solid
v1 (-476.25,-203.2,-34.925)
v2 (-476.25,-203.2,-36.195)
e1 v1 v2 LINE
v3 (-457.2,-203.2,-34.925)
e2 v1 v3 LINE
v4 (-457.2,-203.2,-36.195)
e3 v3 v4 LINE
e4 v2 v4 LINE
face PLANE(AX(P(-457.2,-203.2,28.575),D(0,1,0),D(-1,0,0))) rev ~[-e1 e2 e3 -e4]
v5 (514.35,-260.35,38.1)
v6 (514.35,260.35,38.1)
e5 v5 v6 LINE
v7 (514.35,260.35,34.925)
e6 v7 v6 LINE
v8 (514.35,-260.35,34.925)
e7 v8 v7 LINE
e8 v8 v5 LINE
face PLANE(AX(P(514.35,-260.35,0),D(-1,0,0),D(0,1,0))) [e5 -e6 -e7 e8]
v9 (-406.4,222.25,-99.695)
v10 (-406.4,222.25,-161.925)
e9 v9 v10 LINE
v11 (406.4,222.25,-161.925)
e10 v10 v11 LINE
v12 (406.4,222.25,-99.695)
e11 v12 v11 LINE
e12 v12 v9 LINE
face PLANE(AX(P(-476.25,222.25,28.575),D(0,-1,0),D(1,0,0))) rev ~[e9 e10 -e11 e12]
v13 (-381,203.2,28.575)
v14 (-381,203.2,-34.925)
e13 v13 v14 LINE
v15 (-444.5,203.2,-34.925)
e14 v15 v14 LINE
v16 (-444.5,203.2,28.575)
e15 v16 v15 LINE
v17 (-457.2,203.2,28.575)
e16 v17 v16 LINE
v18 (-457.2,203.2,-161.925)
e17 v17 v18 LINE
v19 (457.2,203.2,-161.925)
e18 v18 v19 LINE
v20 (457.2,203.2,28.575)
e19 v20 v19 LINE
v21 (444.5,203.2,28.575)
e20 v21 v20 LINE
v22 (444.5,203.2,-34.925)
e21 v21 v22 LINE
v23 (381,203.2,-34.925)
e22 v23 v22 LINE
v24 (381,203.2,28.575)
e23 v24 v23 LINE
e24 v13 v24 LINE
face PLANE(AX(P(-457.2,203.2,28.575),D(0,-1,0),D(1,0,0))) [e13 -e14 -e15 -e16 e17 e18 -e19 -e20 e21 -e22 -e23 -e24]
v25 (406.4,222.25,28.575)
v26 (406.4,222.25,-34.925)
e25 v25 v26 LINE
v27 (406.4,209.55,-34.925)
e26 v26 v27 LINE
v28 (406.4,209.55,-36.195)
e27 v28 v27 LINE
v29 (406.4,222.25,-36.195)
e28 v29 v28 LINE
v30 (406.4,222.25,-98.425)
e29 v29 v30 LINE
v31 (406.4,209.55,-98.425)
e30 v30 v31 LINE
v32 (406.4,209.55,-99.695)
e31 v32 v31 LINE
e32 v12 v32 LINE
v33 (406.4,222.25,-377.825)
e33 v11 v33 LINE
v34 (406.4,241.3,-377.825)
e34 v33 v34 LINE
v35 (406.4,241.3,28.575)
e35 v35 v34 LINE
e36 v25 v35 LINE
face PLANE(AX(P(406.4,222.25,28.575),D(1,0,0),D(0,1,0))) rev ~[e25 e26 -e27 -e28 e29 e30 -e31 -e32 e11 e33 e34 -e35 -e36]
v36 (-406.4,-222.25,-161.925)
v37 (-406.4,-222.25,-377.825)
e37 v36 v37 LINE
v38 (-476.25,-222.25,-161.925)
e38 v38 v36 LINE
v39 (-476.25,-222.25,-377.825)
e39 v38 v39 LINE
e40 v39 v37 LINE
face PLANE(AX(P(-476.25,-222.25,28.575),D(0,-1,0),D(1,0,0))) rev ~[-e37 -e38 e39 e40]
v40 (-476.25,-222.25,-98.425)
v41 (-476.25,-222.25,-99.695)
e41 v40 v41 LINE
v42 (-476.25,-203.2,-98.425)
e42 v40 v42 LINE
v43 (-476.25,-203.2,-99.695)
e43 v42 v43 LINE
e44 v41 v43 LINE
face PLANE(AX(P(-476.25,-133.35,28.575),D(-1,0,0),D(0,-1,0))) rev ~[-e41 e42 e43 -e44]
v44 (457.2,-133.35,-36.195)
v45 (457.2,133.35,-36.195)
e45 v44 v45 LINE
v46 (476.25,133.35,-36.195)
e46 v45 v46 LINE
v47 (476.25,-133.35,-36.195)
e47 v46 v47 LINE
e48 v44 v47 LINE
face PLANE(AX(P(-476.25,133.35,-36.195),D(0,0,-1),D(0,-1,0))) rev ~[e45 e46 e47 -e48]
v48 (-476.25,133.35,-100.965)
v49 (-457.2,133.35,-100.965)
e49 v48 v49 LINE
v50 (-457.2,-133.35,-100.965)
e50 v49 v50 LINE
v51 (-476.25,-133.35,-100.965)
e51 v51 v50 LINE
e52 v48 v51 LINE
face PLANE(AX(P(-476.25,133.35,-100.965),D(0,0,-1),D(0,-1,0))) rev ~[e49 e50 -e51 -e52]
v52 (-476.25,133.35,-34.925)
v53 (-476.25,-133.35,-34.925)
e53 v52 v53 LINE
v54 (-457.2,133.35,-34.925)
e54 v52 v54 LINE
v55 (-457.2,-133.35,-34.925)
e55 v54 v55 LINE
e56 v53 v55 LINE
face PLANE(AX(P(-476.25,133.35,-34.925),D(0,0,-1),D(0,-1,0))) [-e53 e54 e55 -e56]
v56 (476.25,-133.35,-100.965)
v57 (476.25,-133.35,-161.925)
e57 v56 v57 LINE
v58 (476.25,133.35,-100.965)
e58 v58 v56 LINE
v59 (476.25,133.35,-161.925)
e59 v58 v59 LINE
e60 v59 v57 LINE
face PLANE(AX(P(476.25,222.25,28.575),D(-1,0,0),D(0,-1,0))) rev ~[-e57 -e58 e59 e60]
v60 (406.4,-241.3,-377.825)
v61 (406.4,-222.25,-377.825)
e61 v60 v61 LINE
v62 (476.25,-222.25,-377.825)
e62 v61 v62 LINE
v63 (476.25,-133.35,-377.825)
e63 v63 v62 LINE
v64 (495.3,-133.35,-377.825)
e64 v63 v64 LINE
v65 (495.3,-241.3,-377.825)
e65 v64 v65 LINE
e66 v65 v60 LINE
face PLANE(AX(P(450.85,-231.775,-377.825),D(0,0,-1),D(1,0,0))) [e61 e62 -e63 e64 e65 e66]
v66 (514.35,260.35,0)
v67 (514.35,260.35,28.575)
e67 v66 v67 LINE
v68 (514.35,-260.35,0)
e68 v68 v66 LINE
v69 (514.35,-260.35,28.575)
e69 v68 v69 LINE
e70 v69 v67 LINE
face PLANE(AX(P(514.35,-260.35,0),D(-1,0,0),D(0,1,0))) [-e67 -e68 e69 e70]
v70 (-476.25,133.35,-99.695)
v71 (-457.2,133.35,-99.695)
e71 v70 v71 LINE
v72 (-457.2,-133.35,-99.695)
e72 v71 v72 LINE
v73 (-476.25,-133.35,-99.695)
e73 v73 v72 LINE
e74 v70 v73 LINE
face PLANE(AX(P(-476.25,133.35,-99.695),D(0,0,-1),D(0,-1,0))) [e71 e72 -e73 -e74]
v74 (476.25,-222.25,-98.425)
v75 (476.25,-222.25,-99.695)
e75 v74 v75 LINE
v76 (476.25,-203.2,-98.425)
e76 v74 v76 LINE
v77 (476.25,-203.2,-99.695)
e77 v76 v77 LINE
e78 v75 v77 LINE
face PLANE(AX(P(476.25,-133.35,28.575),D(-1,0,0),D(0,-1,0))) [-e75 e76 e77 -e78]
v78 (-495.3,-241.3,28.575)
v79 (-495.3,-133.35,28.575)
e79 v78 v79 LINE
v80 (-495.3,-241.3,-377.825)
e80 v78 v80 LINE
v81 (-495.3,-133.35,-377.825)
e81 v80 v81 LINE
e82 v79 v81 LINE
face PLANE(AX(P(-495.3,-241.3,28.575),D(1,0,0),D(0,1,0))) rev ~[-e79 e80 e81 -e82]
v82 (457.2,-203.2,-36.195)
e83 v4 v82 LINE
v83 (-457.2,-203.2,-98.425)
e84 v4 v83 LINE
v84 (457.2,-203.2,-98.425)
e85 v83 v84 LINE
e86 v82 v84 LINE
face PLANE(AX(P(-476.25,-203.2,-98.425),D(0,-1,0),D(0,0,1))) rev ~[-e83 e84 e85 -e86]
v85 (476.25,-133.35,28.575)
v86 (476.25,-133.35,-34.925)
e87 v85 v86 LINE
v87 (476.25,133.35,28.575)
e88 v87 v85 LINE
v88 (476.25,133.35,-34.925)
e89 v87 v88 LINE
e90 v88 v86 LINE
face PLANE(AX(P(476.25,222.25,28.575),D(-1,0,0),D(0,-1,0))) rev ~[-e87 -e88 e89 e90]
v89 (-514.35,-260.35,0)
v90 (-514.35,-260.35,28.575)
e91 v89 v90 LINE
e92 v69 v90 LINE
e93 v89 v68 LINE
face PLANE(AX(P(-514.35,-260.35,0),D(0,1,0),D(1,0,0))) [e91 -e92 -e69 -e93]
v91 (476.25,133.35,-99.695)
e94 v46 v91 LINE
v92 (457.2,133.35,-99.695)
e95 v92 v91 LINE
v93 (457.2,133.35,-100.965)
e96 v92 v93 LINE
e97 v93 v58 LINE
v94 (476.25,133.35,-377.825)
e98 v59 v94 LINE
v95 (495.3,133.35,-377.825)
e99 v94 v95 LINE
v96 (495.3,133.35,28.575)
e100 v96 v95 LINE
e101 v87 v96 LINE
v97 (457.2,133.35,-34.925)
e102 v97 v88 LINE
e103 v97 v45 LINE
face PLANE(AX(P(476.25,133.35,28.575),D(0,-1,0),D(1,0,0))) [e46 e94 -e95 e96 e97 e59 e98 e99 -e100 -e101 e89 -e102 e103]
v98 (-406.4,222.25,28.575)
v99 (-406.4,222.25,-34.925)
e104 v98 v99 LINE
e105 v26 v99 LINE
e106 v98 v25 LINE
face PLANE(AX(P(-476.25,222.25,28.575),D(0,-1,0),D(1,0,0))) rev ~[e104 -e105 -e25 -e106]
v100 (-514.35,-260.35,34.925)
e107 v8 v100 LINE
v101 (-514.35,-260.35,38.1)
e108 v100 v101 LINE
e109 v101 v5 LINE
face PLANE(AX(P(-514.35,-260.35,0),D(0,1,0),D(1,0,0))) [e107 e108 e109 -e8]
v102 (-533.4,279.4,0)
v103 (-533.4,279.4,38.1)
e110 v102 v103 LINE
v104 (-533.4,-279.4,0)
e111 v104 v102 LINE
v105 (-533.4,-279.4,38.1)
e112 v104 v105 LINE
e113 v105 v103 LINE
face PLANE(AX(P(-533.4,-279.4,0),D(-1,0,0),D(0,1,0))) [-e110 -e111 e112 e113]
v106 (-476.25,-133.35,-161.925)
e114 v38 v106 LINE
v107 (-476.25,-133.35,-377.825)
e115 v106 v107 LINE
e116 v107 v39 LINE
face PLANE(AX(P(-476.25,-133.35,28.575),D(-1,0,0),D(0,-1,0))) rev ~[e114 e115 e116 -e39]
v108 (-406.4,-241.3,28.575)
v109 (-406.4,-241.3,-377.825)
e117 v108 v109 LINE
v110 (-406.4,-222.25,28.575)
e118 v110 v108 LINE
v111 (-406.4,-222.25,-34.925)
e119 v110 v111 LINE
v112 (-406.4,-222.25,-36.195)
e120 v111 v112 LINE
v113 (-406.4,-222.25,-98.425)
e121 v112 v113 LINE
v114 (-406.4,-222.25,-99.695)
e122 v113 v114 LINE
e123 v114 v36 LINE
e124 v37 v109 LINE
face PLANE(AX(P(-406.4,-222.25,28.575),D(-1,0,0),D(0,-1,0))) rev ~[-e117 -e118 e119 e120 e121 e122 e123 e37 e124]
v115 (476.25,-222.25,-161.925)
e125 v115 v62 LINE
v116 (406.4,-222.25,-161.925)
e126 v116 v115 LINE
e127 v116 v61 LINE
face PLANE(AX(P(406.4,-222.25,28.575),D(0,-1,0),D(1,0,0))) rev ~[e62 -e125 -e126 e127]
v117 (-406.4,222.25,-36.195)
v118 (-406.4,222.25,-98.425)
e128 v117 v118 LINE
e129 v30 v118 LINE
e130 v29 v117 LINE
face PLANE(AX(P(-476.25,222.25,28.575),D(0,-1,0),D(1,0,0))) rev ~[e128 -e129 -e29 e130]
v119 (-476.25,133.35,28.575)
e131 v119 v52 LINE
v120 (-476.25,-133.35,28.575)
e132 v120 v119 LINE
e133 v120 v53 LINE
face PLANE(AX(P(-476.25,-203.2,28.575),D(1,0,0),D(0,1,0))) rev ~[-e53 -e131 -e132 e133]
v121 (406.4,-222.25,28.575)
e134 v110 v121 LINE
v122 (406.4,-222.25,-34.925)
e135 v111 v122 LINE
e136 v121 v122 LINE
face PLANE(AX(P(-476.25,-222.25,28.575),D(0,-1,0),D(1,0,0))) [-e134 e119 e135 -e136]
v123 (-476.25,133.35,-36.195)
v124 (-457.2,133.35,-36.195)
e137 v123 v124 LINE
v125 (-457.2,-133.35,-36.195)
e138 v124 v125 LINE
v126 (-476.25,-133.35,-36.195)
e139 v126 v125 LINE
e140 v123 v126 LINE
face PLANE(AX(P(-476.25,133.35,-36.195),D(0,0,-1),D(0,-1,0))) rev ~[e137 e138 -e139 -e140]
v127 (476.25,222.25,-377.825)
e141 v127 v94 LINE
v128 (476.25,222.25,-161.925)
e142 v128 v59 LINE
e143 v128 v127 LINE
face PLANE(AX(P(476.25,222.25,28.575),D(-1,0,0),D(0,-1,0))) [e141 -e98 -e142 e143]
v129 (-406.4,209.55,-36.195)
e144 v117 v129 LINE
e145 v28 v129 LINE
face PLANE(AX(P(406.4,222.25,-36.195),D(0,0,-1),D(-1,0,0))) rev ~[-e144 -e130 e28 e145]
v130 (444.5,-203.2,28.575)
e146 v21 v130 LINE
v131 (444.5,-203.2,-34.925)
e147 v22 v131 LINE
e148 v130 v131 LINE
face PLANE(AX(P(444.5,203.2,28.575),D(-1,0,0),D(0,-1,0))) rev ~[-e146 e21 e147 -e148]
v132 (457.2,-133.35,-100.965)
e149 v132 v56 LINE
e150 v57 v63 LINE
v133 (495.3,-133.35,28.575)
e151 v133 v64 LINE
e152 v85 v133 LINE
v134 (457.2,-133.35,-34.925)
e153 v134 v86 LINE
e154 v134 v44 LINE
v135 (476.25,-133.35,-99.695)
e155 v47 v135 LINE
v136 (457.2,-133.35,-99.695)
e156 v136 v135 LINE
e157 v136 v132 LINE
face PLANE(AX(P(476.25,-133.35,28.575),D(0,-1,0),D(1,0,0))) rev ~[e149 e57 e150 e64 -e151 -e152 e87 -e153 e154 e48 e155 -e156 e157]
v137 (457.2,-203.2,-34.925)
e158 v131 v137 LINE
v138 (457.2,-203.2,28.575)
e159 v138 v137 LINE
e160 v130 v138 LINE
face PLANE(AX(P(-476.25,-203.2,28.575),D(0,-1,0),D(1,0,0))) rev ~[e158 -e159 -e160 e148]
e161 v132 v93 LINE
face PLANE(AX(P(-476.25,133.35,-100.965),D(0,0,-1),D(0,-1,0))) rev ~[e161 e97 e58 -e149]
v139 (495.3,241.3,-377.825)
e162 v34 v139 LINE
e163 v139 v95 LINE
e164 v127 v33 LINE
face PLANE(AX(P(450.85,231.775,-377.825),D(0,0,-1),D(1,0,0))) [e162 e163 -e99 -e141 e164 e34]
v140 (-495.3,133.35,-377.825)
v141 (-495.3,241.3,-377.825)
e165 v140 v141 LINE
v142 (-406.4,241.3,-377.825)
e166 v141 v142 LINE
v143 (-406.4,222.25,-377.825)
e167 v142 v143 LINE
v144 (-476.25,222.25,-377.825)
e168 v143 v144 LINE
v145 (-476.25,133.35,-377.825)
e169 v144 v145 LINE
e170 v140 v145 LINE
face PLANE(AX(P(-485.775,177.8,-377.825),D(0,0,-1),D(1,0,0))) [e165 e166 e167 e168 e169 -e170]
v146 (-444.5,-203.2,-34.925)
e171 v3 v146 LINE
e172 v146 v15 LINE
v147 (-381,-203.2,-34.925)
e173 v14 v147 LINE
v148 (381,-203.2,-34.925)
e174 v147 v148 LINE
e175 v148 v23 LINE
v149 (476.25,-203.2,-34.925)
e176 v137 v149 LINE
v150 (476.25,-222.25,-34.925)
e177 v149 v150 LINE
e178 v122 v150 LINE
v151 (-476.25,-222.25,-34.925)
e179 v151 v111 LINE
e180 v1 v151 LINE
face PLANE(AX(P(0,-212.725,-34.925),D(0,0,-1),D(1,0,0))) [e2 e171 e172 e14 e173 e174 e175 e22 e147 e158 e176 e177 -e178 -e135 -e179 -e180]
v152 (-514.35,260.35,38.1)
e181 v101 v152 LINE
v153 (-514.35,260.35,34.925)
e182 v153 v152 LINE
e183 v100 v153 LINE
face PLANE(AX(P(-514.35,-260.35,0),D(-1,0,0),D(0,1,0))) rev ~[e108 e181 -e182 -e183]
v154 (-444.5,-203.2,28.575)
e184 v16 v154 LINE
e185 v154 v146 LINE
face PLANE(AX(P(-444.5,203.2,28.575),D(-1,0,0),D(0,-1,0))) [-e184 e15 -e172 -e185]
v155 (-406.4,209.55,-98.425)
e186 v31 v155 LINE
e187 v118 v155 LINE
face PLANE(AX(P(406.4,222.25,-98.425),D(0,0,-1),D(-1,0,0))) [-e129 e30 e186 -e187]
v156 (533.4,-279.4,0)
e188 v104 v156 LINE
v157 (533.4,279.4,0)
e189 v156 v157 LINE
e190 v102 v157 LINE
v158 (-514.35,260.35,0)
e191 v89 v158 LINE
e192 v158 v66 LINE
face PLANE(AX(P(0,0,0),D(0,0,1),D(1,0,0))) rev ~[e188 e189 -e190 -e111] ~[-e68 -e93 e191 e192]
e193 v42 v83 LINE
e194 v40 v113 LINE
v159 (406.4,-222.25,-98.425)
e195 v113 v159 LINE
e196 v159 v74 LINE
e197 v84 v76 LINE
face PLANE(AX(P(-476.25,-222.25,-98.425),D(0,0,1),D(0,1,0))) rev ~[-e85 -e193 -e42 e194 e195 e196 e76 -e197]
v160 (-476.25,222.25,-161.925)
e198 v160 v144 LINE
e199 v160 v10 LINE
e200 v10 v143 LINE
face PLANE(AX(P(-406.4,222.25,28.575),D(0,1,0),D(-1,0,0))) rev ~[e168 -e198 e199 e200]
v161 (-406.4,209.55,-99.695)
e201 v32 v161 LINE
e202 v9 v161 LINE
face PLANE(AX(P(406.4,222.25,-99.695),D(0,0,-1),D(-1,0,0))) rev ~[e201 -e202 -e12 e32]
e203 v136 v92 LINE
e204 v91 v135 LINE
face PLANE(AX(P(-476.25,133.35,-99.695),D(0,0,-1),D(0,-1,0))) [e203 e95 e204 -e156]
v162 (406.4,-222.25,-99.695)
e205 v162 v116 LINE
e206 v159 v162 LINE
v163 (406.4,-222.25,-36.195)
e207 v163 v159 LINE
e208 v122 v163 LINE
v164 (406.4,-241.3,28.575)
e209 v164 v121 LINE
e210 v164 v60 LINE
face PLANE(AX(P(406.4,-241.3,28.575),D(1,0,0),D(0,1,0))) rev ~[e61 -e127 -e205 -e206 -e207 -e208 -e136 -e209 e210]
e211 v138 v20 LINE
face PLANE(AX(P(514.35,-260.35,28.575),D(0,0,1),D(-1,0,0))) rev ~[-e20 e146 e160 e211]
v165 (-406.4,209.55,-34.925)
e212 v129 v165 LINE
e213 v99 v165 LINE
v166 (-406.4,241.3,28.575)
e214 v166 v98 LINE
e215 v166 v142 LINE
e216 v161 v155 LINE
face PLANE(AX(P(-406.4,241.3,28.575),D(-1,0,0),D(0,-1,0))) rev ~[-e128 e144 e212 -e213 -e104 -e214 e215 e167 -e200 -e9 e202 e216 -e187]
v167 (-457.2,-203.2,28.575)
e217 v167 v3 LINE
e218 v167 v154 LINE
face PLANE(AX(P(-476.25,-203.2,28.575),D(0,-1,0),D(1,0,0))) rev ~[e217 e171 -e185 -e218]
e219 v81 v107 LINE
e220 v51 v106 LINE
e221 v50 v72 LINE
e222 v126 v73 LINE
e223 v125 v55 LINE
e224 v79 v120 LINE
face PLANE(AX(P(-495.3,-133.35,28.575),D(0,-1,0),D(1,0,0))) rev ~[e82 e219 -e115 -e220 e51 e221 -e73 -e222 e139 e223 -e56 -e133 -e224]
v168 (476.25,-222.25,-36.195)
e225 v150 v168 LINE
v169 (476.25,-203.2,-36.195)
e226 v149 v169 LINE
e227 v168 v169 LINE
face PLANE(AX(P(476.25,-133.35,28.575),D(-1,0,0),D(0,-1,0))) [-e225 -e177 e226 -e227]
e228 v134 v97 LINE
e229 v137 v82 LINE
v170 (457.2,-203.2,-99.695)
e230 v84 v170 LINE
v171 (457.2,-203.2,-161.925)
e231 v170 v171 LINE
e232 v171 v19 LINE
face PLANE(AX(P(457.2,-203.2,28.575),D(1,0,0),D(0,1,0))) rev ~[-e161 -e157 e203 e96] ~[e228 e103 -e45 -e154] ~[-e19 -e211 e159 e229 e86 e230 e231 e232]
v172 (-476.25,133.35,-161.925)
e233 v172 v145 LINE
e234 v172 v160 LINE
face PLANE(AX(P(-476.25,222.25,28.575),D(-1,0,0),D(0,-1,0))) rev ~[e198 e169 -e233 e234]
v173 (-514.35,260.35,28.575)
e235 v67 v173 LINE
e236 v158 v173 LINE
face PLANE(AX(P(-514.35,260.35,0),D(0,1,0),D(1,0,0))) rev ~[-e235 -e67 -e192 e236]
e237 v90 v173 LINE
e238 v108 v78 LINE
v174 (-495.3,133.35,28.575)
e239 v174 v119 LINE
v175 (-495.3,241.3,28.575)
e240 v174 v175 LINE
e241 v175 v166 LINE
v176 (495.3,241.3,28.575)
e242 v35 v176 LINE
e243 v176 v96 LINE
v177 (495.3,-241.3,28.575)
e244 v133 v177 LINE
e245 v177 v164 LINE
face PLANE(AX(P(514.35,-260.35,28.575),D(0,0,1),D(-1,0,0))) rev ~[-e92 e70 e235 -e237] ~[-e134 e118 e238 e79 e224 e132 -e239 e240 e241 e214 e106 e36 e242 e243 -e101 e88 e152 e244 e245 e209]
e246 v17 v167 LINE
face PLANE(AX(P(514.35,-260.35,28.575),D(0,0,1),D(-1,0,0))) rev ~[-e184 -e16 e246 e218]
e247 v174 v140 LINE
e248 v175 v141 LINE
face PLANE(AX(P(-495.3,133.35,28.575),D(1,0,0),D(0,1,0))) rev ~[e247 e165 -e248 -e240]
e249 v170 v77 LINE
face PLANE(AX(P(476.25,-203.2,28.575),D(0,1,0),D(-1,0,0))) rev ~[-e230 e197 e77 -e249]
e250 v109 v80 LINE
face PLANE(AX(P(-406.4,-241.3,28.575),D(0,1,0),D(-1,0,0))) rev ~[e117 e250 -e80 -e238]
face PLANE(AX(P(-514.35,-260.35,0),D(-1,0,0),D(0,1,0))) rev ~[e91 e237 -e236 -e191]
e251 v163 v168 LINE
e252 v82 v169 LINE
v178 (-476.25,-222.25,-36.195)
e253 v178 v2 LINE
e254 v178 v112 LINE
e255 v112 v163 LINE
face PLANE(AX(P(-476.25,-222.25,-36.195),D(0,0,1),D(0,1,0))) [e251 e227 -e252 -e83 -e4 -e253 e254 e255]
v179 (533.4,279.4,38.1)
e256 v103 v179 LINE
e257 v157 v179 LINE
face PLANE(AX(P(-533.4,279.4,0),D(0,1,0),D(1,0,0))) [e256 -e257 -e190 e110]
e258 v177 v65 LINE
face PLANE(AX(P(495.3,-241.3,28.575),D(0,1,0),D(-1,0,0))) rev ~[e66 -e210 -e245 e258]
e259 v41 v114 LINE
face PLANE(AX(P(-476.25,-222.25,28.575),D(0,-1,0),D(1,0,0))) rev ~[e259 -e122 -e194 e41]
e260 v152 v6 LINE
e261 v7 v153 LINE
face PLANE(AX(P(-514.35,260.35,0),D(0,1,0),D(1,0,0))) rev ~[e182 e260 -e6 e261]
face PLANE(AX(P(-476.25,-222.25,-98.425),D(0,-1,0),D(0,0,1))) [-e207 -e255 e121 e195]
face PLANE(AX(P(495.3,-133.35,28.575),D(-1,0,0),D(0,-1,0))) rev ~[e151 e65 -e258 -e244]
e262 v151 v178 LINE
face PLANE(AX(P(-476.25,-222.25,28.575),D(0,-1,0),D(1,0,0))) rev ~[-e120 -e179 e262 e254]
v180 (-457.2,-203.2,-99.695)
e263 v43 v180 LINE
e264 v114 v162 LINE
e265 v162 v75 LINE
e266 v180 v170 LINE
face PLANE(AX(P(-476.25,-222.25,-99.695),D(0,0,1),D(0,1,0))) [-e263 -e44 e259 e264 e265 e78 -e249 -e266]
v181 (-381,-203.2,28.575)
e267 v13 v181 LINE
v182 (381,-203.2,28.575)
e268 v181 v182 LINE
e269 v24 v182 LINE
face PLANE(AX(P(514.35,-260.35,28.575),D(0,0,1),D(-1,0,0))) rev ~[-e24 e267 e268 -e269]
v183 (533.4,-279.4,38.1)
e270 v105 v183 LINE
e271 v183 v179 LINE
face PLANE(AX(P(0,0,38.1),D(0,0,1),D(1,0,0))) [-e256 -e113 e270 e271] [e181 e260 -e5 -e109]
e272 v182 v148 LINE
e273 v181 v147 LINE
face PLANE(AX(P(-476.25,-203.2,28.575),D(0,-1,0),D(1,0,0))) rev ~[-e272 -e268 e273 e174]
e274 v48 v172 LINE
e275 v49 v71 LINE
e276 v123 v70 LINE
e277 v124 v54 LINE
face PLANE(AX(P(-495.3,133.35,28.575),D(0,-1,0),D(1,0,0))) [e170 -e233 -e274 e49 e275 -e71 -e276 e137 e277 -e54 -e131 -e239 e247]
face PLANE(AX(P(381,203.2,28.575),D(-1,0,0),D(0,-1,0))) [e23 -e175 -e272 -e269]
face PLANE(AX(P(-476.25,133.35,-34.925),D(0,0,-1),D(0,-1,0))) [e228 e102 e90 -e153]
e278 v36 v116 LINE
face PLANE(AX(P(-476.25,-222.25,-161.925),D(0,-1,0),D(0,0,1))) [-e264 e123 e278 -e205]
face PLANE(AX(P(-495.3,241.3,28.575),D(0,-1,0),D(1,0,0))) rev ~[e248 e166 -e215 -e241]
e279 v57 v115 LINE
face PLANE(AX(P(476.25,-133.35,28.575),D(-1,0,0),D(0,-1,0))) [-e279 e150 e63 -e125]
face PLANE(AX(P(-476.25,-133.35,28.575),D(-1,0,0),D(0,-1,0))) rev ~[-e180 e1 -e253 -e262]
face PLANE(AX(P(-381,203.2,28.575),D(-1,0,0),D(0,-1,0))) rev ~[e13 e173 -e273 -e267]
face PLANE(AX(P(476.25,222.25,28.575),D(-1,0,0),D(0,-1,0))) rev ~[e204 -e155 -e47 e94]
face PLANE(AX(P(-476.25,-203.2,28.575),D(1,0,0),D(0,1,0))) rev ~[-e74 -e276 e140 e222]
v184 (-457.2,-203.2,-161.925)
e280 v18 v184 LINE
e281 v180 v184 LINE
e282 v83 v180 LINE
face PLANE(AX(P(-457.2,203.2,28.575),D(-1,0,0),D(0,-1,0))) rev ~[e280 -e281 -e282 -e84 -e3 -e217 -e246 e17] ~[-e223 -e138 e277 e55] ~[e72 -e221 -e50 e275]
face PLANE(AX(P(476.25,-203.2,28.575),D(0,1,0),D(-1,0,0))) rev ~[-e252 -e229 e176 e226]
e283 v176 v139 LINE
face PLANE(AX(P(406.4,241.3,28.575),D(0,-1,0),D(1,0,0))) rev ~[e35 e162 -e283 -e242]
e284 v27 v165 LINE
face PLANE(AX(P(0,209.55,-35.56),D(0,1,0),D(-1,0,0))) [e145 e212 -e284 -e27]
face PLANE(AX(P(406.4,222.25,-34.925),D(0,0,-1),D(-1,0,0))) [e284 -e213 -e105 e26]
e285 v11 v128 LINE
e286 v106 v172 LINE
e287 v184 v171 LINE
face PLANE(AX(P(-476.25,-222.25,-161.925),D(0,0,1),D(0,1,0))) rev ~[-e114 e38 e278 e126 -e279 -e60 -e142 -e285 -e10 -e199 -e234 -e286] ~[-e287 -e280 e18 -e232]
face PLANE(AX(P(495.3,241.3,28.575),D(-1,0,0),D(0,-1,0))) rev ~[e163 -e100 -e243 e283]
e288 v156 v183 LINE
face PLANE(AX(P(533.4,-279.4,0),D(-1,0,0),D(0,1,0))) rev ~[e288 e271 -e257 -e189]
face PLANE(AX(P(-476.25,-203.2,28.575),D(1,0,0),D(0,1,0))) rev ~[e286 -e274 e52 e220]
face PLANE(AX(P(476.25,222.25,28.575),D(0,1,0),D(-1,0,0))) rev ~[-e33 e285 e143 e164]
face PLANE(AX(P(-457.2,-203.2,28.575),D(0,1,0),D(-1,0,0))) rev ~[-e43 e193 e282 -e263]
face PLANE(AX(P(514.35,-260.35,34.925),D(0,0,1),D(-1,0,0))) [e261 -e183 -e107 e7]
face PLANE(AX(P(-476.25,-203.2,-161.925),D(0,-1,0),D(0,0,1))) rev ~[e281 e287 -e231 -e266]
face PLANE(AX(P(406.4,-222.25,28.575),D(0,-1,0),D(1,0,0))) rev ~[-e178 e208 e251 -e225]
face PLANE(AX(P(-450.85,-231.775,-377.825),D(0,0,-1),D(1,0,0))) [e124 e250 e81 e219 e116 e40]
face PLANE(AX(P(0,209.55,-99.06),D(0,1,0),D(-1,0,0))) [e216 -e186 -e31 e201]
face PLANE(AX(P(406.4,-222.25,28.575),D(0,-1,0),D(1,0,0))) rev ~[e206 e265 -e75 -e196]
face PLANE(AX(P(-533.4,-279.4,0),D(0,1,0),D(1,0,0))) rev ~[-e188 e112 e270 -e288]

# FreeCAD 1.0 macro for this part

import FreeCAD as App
import Part
import Sketcher
from FreeCAD import Vector
Q = App.Units.Quantity

doc = App.newDocument("Part")
body = doc.addObject("PartDesign::Body", "Body")

# Sketch on XY plane
sketch1 = body.newObject("Sketcher::SketchObject", "Sketch")
sketch1.AttachmentSupport = (doc.getObject("XY_Plane"), [""])
sketch1.MapMode = "FlatFace"
sketch1.addGeometry(Part.LineSegment(Vector(-533, 279, 0), Vector(-533, -279, 0)), False)
sketch1.addGeometry(Part.LineSegment(Vector(-533, -279, 0), Vector(533, -279, 0)), False)
sketch1.addGeometry(Part.LineSegment(Vector(533, -279, 0), Vector(533, 279, 0)), False)
sketch1.addGeometry(Part.LineSegment(Vector(533, 279, 0), Vector(-533, 279, 0)), False)
sketch1.addGeometry(Part.LineSegment(Vector(514, -260, 0), Vector(-514, -260, 0)), False)
sketch1.addGeometry(Part.LineSegment(Vector(-514, -260, 0), Vector(-514, 260, 0)), False)
sketch1.addGeometry(Part.LineSegment(Vector(-514, 260, 0), Vector(514, 260, 0)), False)
sketch1.addGeometry(Part.LineSegment(Vector(514, 260, 0), Vector(514, -260, 0)), False)
sketch1.addConstraint(Sketcher.Constraint("Coincident", 0, 2, 1, 1))
sketch1.addConstraint(Sketcher.Constraint("Coincident", 1, 2, 2, 1))
sketch1.addConstraint(Sketcher.Constraint("Coincident", 2, 2, 3, 1))
sketch1.addConstraint(Sketcher.Constraint("Coincident", 3, 2, 0, 1))
sketch1.addConstraint(Sketcher.Constraint("Coincident", 4, 2, 5, 1))
sketch1.addConstraint(Sketcher.Constraint("Coincident", 5, 2, 6, 1))
sketch1.addConstraint(Sketcher.Constraint("Coincident", 6, 2, 7, 1))
sketch1.addConstraint(Sketcher.Constraint("Coincident", 7, 2, 4, 1))
sketch1.addConstraint(Sketcher.Constraint("Vertical", 0))
sketch1.addConstraint(Sketcher.Constraint("Horizontal", 1))
sketch1.addConstraint(Sketcher.Constraint("Vertical", 2))
sketch1.addConstraint(Sketcher.Constraint("Horizontal", 3))
sketch1.addConstraint(Sketcher.Constraint("Horizontal", 4))
sketch1.addConstraint(Sketcher.Constraint("Vertical", 5))
sketch1.addConstraint(Sketcher.Constraint("Horizontal", 6))
sketch1.addConstraint(Sketcher.Constraint("Vertical", 7))
sketch1.addConstraint(Sketcher.Constraint("Symmetric", 0, 2, 2, 2, -1, 1))
sketch1.addConstraint(Sketcher.Constraint("Symmetric", 4, 2, 6, 2, -1, 1))
sketch1.addConstraint(Sketcher.Constraint("DistanceX", 1, 1, 1, 2, Q("42 in")))
sketch1.addConstraint(Sketcher.Constraint("DistanceY", 0, 2, 0, 1, Q("22 in")))
sketch1.addConstraint(Sketcher.Constraint("DistanceX", 4, 2, 4, 1, Q("40.5 in")))
sketch1.addConstraint(Sketcher.Constraint("DistanceY", 5, 1, 5, 2, Q("20.5 in")))
pad1 = body.newObject("PartDesign::Pad", "Pad")
pad1.Profile = sketch1
pad1.Length = Q("1.5 in")

# Sketch on XZ plane
sketch2 = body.newObject("Sketcher::SketchObject", "Sketch001")
sketch2.AttachmentSupport = (doc.getObject("XZ_Plane"), [""])
sketch2.MapMode = "FlatFace"
sketch2.AttachmentOffset = App.Placement(Vector(0, 0, 10.25 * 25.4), App.Rotation())
sketch2.addGeometry(Part.LineSegment(Vector(514, 35, 0), Vector(514, 29, 0)), False)
sketch2.addGeometry(Part.LineSegment(Vector(514, 29, 0), Vector(-514, 29, 0)), False)
sketch2.addGeometry(Part.LineSegment(Vector(-514, 29, 0), Vector(-514, 35, 0)), False)
sketch2.addGeometry(Part.LineSegment(Vector(-514, 35, 0), Vector(514, 35, 0)), False)
sketch2.addConstraint(Sketcher.Constraint("Coincident", 0, 2, 1, 1))
sketch2.addConstraint(Sketcher.Constraint("Coincident", 1, 2, 2, 1))
sketch2.addConstraint(Sketcher.Constraint("Coincident", 2, 2, 3, 1))
sketch2.addConstraint(Sketcher.Constraint("Coincident", 3, 2, 0, 1))
sketch2.addConstraint(Sketcher.Constraint("Vertical", 0))
sketch2.addConstraint(Sketcher.Constraint("Horizontal", 1))
sketch2.addConstraint(Sketcher.Constraint("Vertical", 2))
sketch2.addConstraint(Sketcher.Constraint("Horizontal", 3))
sketch2.addConstraint(Sketcher.Constraint("DistanceX", 1, 2, 1, 1, Q("40.5 in")))
sketch2.addConstraint(Sketcher.Constraint("DistanceY", 0, 2, 0, 1, Q("0.25 in")))
sketch2.addConstraint(Sketcher.Constraint("DistanceX", -1, 1, 0, 2, Q("20.25 in")))
sketch2.addConstraint(Sketcher.Constraint("DistanceY", -1, 1, 0, 2, Q("1.125 in")))
pad2 = body.newObject("PartDesign::Pad", "Pad001")
pad2.Profile = sketch2
pad2.Length = Q("20.5 in")
pad2.Reversed = True

# Sketch on XY plane
sketch3 = body.newObject("Sketcher::SketchObject", "Sketch002")
sketch3.AttachmentSupport = (doc.getObject("XY_Plane"), [""])
sketch3.MapMode = "FlatFace"
sketch3.AttachmentOffset = App.Placement(Vector(0, 0, 1.125 * 25.4), App.Rotation())
sketch3.addGeometry(Part.LineSegment(Vector(-476, -222, 0), Vector(-476, -203, 0)), False)
sketch3.addGeometry(Part.LineSegment(Vector(-476, -203, 0), Vector(476, -203, 0)), False)
sketch3.addGeometry(Part.LineSegment(Vector(476, -203, 0), Vector(476, -222, 0)), False)
sketch3.addGeometry(Part.LineSegment(Vector(476, -222, 0), Vector(-476, -222, 0)), False)
sketch3.addConstraint(Sketcher.Constraint("Coincident", 0, 2, 1, 1))
sketch3.addConstraint(Sketcher.Constraint("Coincident", 1, 2, 2, 1))
sketch3.addConstraint(Sketcher.Constraint("Coincident", 2, 2, 3, 1))
sketch3.addConstraint(Sketcher.Constraint("Coincident", 3, 2, 0, 1))
sketch3.addConstraint(Sketcher.Constraint("Vertical", 0))
sketch3.addConstraint(Sketcher.Constraint("Horizontal", 1))
sketch3.addConstraint(Sketcher.Constraint("Vertical", 2))
sketch3.addConstraint(Sketcher.Constraint("Horizontal", 3))
sketch3.addConstraint(Sketcher.Constraint("DistanceX", 1, 1, 1, 2, Q("37.5 in")))
sketch3.addConstraint(Sketcher.Constraint("DistanceY", 0, 2, -1, 1, Q("8 in")))
sketch3.addConstraint(Sketcher.Constraint("DistanceY", 0, 1, 0, 2, Q("0.75 in")))
sketch3.addConstraint(Sketcher.Constraint("DistanceX", 0, 2, -1, 1, Q("18.75 in")))
pad3 = body.newObject("PartDesign::Pad", "Pad002")
pad3.Profile = sketch3
pad3.Length = Q("2.5 in")
pad3.Reversed = True

# Sketch on XY plane
sketch4 = body.newObject("Sketcher::SketchObject", "Sketch003")
sketch4.AttachmentSupport = (doc.getObject("XY_Plane"), [""])
sketch4.MapMode = "FlatFace"
sketch4.AttachmentOffset = App.Placement(Vector(0, 0, 1.125 * 25.4), App.Rotation())
sketch4.addGeometry(Part.LineSegment(Vector(-444, -203, 0), Vector(-444, 203, 0)), False)
sketch4.addGeometry(Part.LineSegment(Vector(-444, 203, 0), Vector(-381, 203, 0)), False)
sketch4.addGeometry(Part.LineSegment(Vector(-381, 203, 0), Vector(-381, -203, 0)), False)
sketch4.addGeometry(Part.LineSegment(Vector(-381, -203, 0), Vector(-444, -203, 0)), False)
sketch4.addGeometry(Part.LineSegment(Vector(381, -203, 0), Vector(381, 203, 0)), False)
sketch4.addGeometry(Part.LineSegment(Vector(381, 203, 0), Vector(444, 203, 0)), False)
sketch4.addGeometry(Part.LineSegment(Vector(444, 203, 0), Vector(444, -203, 0)), False)
sketch4.addGeometry(Part.LineSegment(Vector(444, -203, 0), Vector(381, -203, 0)), False)
sketch4.addConstraint(Sketcher.Constraint("Coincident", 0, 2, 1, 1))
sketch4.addConstraint(Sketcher.Constraint("Coincident", 1, 2, 2, 1))
sketch4.addConstraint(Sketcher.Constraint("Coincident", 2, 2, 3, 1))
sketch4.addConstraint(Sketcher.Constraint("Coincident", 3, 2, 0, 1))
sketch4.addConstraint(Sketcher.Constraint("Coincident", 4, 2, 5, 1))
sketch4.addConstraint(Sketcher.Constraint("Coincident", 5, 2, 6, 1))
sketch4.addConstraint(Sketcher.Constraint("Coincident", 6, 2, 7, 1))
sketch4.addConstraint(Sketcher.Constraint("Coincident", 7, 2, 4, 1))
sketch4.addConstraint(Sketcher.Constraint("Vertical", 0))
sketch4.addConstraint(Sketcher.Constraint("Horizontal", 1))
sketch4.addConstraint(Sketcher.Constraint("Vertical", 2))
sketch4.addConstraint(Sketcher.Constraint("Horizontal", 3))
sketch4.addConstraint(Sketcher.Constraint("Vertical", 4))
sketch4.addConstraint(Sketcher.Constraint("Horizontal", 5))
sketch4.addConstraint(Sketcher.Constraint("Vertical", 6))
sketch4.addConstraint(Sketcher.Constraint("Horizontal", 7))
sketch4.addConstraint(Sketcher.Constraint("Symmetric", 2, 2, 4, 2, -1, 1))
sketch4.addConstraint(Sketcher.Constraint("Symmetric", 0, 2, 6, 2, -1, 1))
sketch4.addConstraint(Sketcher.Constraint("Horizontal", 1, 2, 4, 2))
sketch4.addConstraint(Sketcher.Constraint("DistanceY", 0, 1, 0, 2, Q("16 in")))
sketch4.addConstraint(Sketcher.Constraint("DistanceX", 1, 1, 1, 2, Q("2.5 in")))
sketch4.addConstraint(Sketcher.Constraint("DistanceX", 1, 2, -1, 1, Q("15 in")))
pad4 = body.newObject("PartDesign::Pad", "Pad003")
pad4.Profile = sketch4
pad4.Length = Q("2.5 in")
pad4.Reversed = True

# Sketch on XY plane
sketch5 = body.newObject("Sketcher::SketchObject", "Sketch004")
sketch5.AttachmentSupport = (doc.getObject("XY_Plane"), [""])
sketch5.MapMode = "FlatFace"
sketch5.AttachmentOffset = App.Placement(Vector(0, 0, 1.125 * 25.4), App.Rotation())
sketch5.addGeometry(Part.LineSegment(Vector(-406, -241, 0), Vector(-495, -241, 0)), False)
sketch5.addGeometry(Part.LineSegment(Vector(-495, -241, 0), Vector(-495, -133, 0)), False)
sketch5.addGeometry(Part.LineSegment(Vector(-495, -133, 0), Vector(-476, -133, 0)), False)
sketch5.addGeometry(Part.LineSegment(Vector(-476, -133, 0), Vector(-476, -222, 0)), False)
sketch5.addGeometry(Part.LineSegment(Vector(-476, -222, 0), Vector(-406, -222, 0)), False)
sketch5.addGeometry(Part.LineSegment(Vector(-406, -222, 0), Vector(-406, -241, 0)), False)
sketch5.addGeometry(Part.LineSegment(Vector(-495, 133, 0), Vector(-495, 241, 0)), False)
sketch5.addGeometry(Part.LineSegment(Vector(-495, 241, 0), Vector(-406, 241, 0)), False)
sketch5.addGeometry(Part.LineSegment(Vector(-406, 241, 0), Vector(-406, 222, 0)), False)
sketch5.addGeometry(Part.LineSegment(Vector(-406, 222, 0), Vector(-476, 222, 0)), False)
sketch5.addGeometry(Part.LineSegment(Vector(-476, 222, 0), Vector(-476, 133, 0)), False)
sketch5.addGeometry(Part.LineSegment(Vector(-476, 133, 0), Vector(-495, 133, 0)), False)
sketch5.addGeometry(Part.LineSegment(Vector(406, 222, 0), Vector(406, 241, 0)), False)
sketch5.addGeometry(Part.LineSegment(Vector(406, 241, 0), Vector(495, 241, 0)), False)
sketch5.addGeometry(Part.LineSegment(Vector(495, 241, 0), Vector(495, 133, 0)), False)
sketch5.addGeometry(Part.LineSegment(Vector(495, 133, 0), Vector(476, 133, 0)), False)
sketch5.addGeometry(Part.LineSegment(Vector(476, 133, 0), Vector(476, 222, 0)), False)
sketch5.addGeometry(Part.LineSegment(Vector(476, 222, 0), Vector(406, 222, 0)), False)
sketch5.addGeometry(Part.LineSegment(Vector(495, -241, 0), Vector(406, -241, 0)), False)
sketch5.addGeometry(Part.LineSegment(Vector(406, -241, 0), Vector(406, -222, 0)), False)
sketch5.addGeometry(Part.LineSegment(Vector(406, -222, 0), Vector(476, -222, 0)), False)
sketch5.addGeometry(Part.LineSegment(Vector(476, -222, 0), Vector(476, -133, 0)), False)
sketch5.addGeometry(Part.LineSegment(Vector(476, -133, 0), Vector(495, -133, 0)), False)
sketch5.addGeometry(Part.LineSegment(Vector(495, -133, 0), Vector(495, -241, 0)), False)
sketch5.addConstraint(Sketcher.Constraint("Coincident", 0, 2, 1, 1))
sketch5.addConstraint(Sketcher.Constraint("Coincident", 1, 2, 2, 1))
sketch5.addConstraint(Sketcher.Constraint("Coincident", 2, 2, 3, 1))
sketch5.addConstraint(Sketcher.Constraint("Coincident", 3, 2, 4, 1))
sketch5.addConstraint(Sketcher.Constraint("Coincident", 4, 2, 5, 1))
sketch5.addConstraint(Sketcher.Constraint("Coincident", 5, 2, 0, 1))
sketch5.addConstraint(Sketcher.Constraint("Coincident", 6, 2, 7, 1))
sketch5.addConstraint(Sketcher.Constraint("Coincident", 7, 2, 8, 1))
sketch5.addConstraint(Sketcher.Constraint("Coincident", 8, 2, 9, 1))
sketch5.addConstraint(Sketcher.Constraint("Coincident", 9, 2, 10, 1))
sketch5.addConstraint(Sketcher.Constraint("Coincident", 10, 2, 11, 1))
sketch5.addConstraint(Sketcher.Constraint("Coincident", 11, 2, 6, 1))
sketch5.addConstraint(Sketcher.Constraint("Coincident", 12, 2, 13, 1))
sketch5.addConstraint(Sketcher.Constraint("Coincident", 13, 2, 14, 1))
sketch5.addConstraint(Sketcher.Constraint("Coincident", 14, 2, 15, 1))
sketch5.addConstraint(Sketcher.Constraint("Coincident", 15, 2, 16, 1))
sketch5.addConstraint(Sketcher.Constraint("Coincident", 16, 2, 17, 1))
sketch5.addConstraint(Sketcher.Constraint("Coincident", 17, 2, 12, 1))
sketch5.addConstraint(Sketcher.Constraint("Coincident", 18, 2, 19, 1))
sketch5.addConstraint(Sketcher.Constraint("Coincident", 19, 2, 20, 1))
sketch5.addConstraint(Sketcher.Constraint("Coincident", 20, 2, 21, 1))
sketch5.addConstraint(Sketcher.Constraint("Coincident", 21, 2, 22, 1))
sketch5.addConstraint(Sketcher.Constraint("Coincident", 22, 2, 23, 1))
sketch5.addConstraint(Sketcher.Constraint("Coincident", 23, 2, 18, 1))
sketch5.addConstraint(Sketcher.Constraint("Horizontal", 0))
sketch5.addConstraint(Sketcher.Constraint("Vertical", 1))
sketch5.addConstraint(Sketcher.Constraint("Horizontal", 2))
sketch5.addConstraint(Sketcher.Constraint("Vertical", 3))
sketch5.addConstraint(Sketcher.Constraint("Horizontal", 4))
sketch5.addConstraint(Sketcher.Constraint("Vertical", 5))
sketch5.addConstraint(Sketcher.Constraint("Vertical", 6))
sketch5.addConstraint(Sketcher.Constraint("Horizontal", 7))
sketch5.addConstraint(Sketcher.Constraint("Vertical", 8))
sketch5.addConstraint(Sketcher.Constraint("Horizontal", 9))
sketch5.addConstraint(Sketcher.Constraint("Vertical", 10))
sketch5.addConstraint(Sketcher.Constraint("Horizontal", 11))
sketch5.addConstraint(Sketcher.Constraint("Vertical", 12))
sketch5.addConstraint(Sketcher.Constraint("Horizontal", 13))
sketch5.addConstraint(Sketcher.Constraint("Vertical", 14))
sketch5.addConstraint(Sketcher.Constraint("Horizontal", 15))
sketch5.addConstraint(Sketcher.Constraint("Vertical", 16))
sketch5.addConstraint(Sketcher.Constraint("Horizontal", 17))
sketch5.addConstraint(Sketcher.Constraint("Horizontal", 18))
sketch5.addConstraint(Sketcher.Constraint("Vertical", 19))
sketch5.addConstraint(Sketcher.Constraint("Horizontal", 20))
sketch5.addConstraint(Sketcher.Constraint("Vertical", 21))
sketch5.addConstraint(Sketcher.Constraint("Horizontal", 22))
sketch5.addConstraint(Sketcher.Constraint("Vertical", 23))
sketch5.addConstraint(Sketcher.Constraint("Symmetric", 5, 2, 12, 2, -1, 1))
sketch5.addConstraint(Sketcher.Constraint("Symmetric", 1, 2, 14, 2, -1, 1))
sketch5.addConstraint(Sketcher.Constraint("Symmetric", 3, 2, 16, 2, -1, 1))
sketch5.addConstraint(Sketcher.Constraint("Symmetric", 7, 2, 18, 2, -1, 1))
sketch5.addConstraint(Sketcher.Constraint("Symmetric", 9, 2, 20, 2, -1, 1))
sketch5.addConstraint(Sketcher.Constraint("Symmetric", 11, 2, 22, 2, -1, 1))
sketch5.addConstraint(Sketcher.Constraint("Symmetric", 7, 2, 12, 2, -2))
sketch5.addConstraint(Sketcher.Constraint("Symmetric", 11, 2, 14, 2, -2))
sketch5.addConstraint(Sketcher.Constraint("Symmetric", 9, 2, 16, 2, -2))
sketch5.addConstraint(Sketcher.Constraint("Equal", 18, 3))
sketch5.addConstraint(Sketcher.Constraint("Equal", 22, 5))
sketch5.addConstraint(Sketcher.Constraint("DistanceX", 0, 2, 0, 1, Q("3.5 in")))
sketch5.addConstraint(Sketcher.Constraint("DistanceX", 4, 2, -1, 1, Q("16 in")))
sketch5.addConstraint(Sketcher.Constraint("DistanceY", 0, 2, 6, 2, Q("19 in")))
sketch5.addConstraint(Sketcher.Constraint("DistanceY", 2, 2, 8, 2, Q("14 in")))
pad5 = body.newObject("PartDesign::Pad", "Pad004")
pad5.Profile = sketch5
pad5.Length = Q("16 in")
pad5.Reversed = True

# Sketch on XY plane
sketch6 = body.newObject("Sketcher::SketchObject", "Sketch005")
sketch6.AttachmentSupport = (doc.getObject("XY_Plane"), [""])
sketch6.MapMode = "FlatFace"
sketch6.AttachmentOffset = App.Placement(Vector(0, 0, 1.125 * 25.4), App.Rotation())
sketch6.addGeometry(Part.LineSegment(Vector(476, 222, 0), Vector(476, -203, 0)), False)
sketch6.addGeometry(Part.LineSegment(Vector(476, -203, 0), Vector(457, -203, 0)), False)
sketch6.addGeometry(Part.LineSegment(Vector(457, -203, 0), Vector(457, 203, 0)), False)
sketch6.addGeometry(Part.LineSegment(Vector(457, 203, 0), Vector(-457, 203, 0)), False)
sketch6.addGeometry(Part.LineSegment(Vector(-457, 203, 0), Vector(-457, -203, 0)), False)
sketch6.addGeometry(Part.LineSegment(Vector(-457, -203, 0), Vector(-476, -203, 0)), False)
sketch6.addGeometry(Part.LineSegment(Vector(-476, -203, 0), Vector(-476, 222, 0)), False)
sketch6.addGeometry(Part.LineSegment(Vector(-476, 222, 0), Vector(476, 222, 0)), False)
sketch6.addConstraint(Sketcher.Constraint("Coincident", 0, 2, 1, 1))
sketch6.addConstraint(Sketcher.Constraint("Coincident", 1, 2, 2, 1))
sketch6.addConstraint(Sketcher.Constraint("Coincident", 2, 2, 3, 1))
sketch6.addConstraint(Sketcher.Constraint("Coincident", 3, 2, 4, 1))
sketch6.addConstraint(Sketcher.Constraint("Coincident", 4, 2, 5, 1))
sketch6.addConstraint(Sketcher.Constraint("Coincident", 5, 2, 6, 1))
sketch6.addConstraint(Sketcher.Constraint("Coincident", 6, 2, 7, 1))
sketch6.addConstraint(Sketcher.Constraint("Coincident", 7, 2, 0, 1))
sketch6.addConstraint(Sketcher.Constraint("Vertical", 0))
sketch6.addConstraint(Sketcher.Constraint("Horizontal", 1))
sketch6.addConstraint(Sketcher.Constraint("Vertical", 2))
sketch6.addConstraint(Sketcher.Constraint("Horizontal", 3))
sketch6.addConstraint(Sketcher.Constraint("Vertical", 4))
sketch6.addConstraint(Sketcher.Constraint("Horizontal", 5))
sketch6.addConstraint(Sketcher.Constraint("Vertical", 6))
sketch6.addConstraint(Sketcher.Constraint("Horizontal", 7))
sketch6.addConstraint(Sketcher.Constraint("Symmetric", 1, 2, 3, 2, -1, 1))
sketch6.addConstraint(Sketcher.Constraint("Symmetric", 0, 2, 5, 2, -2))
sketch6.addConstraint(Sketcher.Constraint("DistanceX", 3, 2, 3, 1, Q("36 in")))
sketch6.addConstraint(Sketcher.Constraint("DistanceY", 2, 1, 2, 2, Q("16 in")))
sketch6.addConstraint(Sketcher.Constraint("DistanceX", 7, 1, 7, 2, Q("37.5 in")))
sketch6.addConstraint(Sketcher.Constraint("DistanceY", 0, 2, 0, 1, Q("16.75 in")))
pad6 = body.newObject("PartDesign::Pad", "Pad005")
pad6.Profile = sketch6
pad6.Length = Q("7.5 in")
pad6.Reversed = True

# Sketch on XZ plane
sketch7 = body.newObject("Sketcher::SketchObject", "Sketch006")
sketch7.AttachmentSupport = (doc.getObject("XZ_Plane"), [""])
sketch7.MapMode = "FlatFace"
sketch7.AttachmentOffset = App.Placement(Vector(0, 0, -8.75 * 25.4), App.Rotation())
sketch7.addGeometry(Part.LineSegment(Vector(406.4, -34.9, 0), Vector(406.4, -36.2, 0)), False)
sketch7.addGeometry(Part.LineSegment(Vector(406.4, -36.2, 0), Vector(-406.4, -36.2, 0)), False)
sketch7.addGeometry(Part.LineSegment(Vector(-406.4, -36.2, 0), Vector(-406.4, -34.9, 0)), False)
sketch7.addGeometry(Part.LineSegment(Vector(-406.4, -34.9, 0), Vector(406.4, -34.9, 0)), False)
sketch7.addGeometry(Part.LineSegment(Vector(406.4, -98.4, 0), Vector(406.4, -99.7, 0)), False)
sketch7.addGeometry(Part.LineSegment(Vector(406.4, -99.7, 0), Vector(-406.4, -99.7, 0)), False)
sketch7.addGeometry(Part.LineSegment(Vector(-406.4, -99.7, 0), Vector(-406.4, -98.4, 0)), False)
sketch7.addGeometry(Part.LineSegment(Vector(-406.4, -98.4, 0), Vector(406.4, -98.4, 0)), False)
sketch7.addConstraint(Sketcher.Constraint("Coincident", 0, 2, 1, 1))
sketch7.addConstraint(Sketcher.Constraint("Coincident", 1, 2, 2, 1))
sketch7.addConstraint(Sketcher.Constraint("Coincident", 2, 2, 3, 1))
sketch7.addConstraint(Sketcher.Constraint("Coincident", 3, 2, 0, 1))
sketch7.addConstraint(Sketcher.Constraint("Coincident", 4, 2, 5, 1))
sketch7.addConstraint(Sketcher.Constraint("Coincident", 5, 2, 6, 1))
sketch7.addConstraint(Sketcher.Constraint("Coincident", 6, 2, 7, 1))
sketch7.addConstraint(Sketcher.Constraint("Coincident", 7, 2, 4, 1))
sketch7.addConstraint(Sketcher.Constraint("Vertical", 0))
sketch7.addConstraint(Sketcher.Constraint("Horizontal", 1))
sketch7.addConstraint(Sketcher.Constraint("Vertical", 2))
sketch7.addConstraint(Sketcher.Constraint("Horizontal", 3))
sketch7.addConstraint(Sketcher.Constraint("Vertical", 4))
sketch7.addConstraint(Sketcher.Constraint("Horizontal", 5))
sketch7.addConstraint(Sketcher.Constraint("Vertical", 6))
sketch7.addConstraint(Sketcher.Constraint("Horizontal", 7))
sketch7.addConstraint(Sketcher.Constraint("Vertical", 3, 2, 4, 2))
sketch7.addConstraint(Sketcher.Constraint("Vertical", 2, 2, 5, 2))
sketch7.addConstraint(Sketcher.Constraint("Equal", 2, 4))
sketch7.addConstraint(Sketcher.Constraint("DistanceX", 1, 2, 1, 1, Q("32 in")))
sketch7.addConstraint(Sketcher.Constraint("DistanceX", -1, 1, 0, 2, Q("16 in")))
sketch7.addConstraint(Sketcher.Constraint("DistanceY", 0, 2, 0, 1, Q("0.05 in")))
sketch7.addConstraint(Sketcher.Constraint("DistanceY", 4, 2, 0, 2, Q("2.5 in")))
sketch7.addConstraint(Sketcher.Constraint("DistanceY", 0, 2, -1, 1, Q("1.425 in")))
pocket1 = body.newObject("PartDesign::Pocket", "Pocket")
pocket1.Profile = sketch7
pocket1.Length = Q("0.5 in")
pocket1.Reversed = True

# Sketch on YZ plane
sketch8 = body.newObject("Sketcher::SketchObject", "Sketch007")
sketch8.AttachmentSupport = (doc.getObject("YZ_Plane"), [""])
sketch8.MapMode = "FlatFace"
sketch8.AttachmentOffset = App.Placement(Vector(0, 0, -18.75 * 25.4), App.Rotation())
sketch8.addGeometry(Part.LineSegment(Vector(133.3, -34.9, 0), Vector(133.3, -36.2, 0)), False)
sketch8.addGeometry(Part.LineSegment(Vector(133.3, -36.2, 0), Vector(-133.3, -36.2, 0)), False)
sketch8.addGeometry(Part.LineSegment(Vector(-133.3, -36.2, 0), Vector(-133.3, -34.9, 0)), False)
sketch8.addGeometry(Part.LineSegment(Vector(-133.3, -34.9, 0), Vector(133.3, -34.9, 0)), False)
sketch8.addGeometry(Part.LineSegment(Vector(133.3, -99.7, 0), Vector(133.3, -101, 0)), False)
sketch8.addGeometry(Part.LineSegment(Vector(133.3, -101, 0), Vector(-133.3, -101, 0)), False)
sketch8.addGeometry(Part.LineSegment(Vector(-133.3, -101, 0), Vector(-133.3, -99.7, 0)), False)
sketch8.addGeometry(Part.LineSegment(Vector(-133.3, -99.7, 0), Vector(133.3, -99.7, 0)), False)
sketch8.addConstraint(Sketcher.Constraint("Coincident", 0, 2, 1, 1))
sketch8.addConstraint(Sketcher.Constraint("Coincident", 1, 2, 2, 1))
sketch8.addConstraint(Sketcher.Constraint("Coincident", 2, 2, 3, 1))
sketch8.addConstraint(Sketcher.Constraint("Coincident", 3, 2, 0, 1))
sketch8.addConstraint(Sketcher.Constraint("Coincident", 4, 2, 5, 1))
sketch8.addConstraint(Sketcher.Constraint("Coincident", 5, 2, 6, 1))
sketch8.addConstraint(Sketcher.Constraint("Coincident", 6, 2, 7, 1))
sketch8.addConstraint(Sketcher.Constraint("Coincident", 7, 2, 4, 1))
sketch8.addConstraint(Sketcher.Constraint("Vertical", 0))
sketch8.addConstraint(Sketcher.Constraint("Horizontal", 1))
sketch8.addConstraint(Sketcher.Constraint("Vertical", 2))
sketch8.addConstraint(Sketcher.Constraint("Horizontal", 3))
sketch8.addConstraint(Sketcher.Constraint("Vertical", 4))
sketch8.addConstraint(Sketcher.Constraint("Horizontal", 5))
sketch8.addConstraint(Sketcher.Constraint("Vertical", 6))
sketch8.addConstraint(Sketcher.Constraint("Horizontal", 7))
sketch8.addConstraint(Sketcher.Constraint("Vertical", 3, 2, 4, 2))
sketch8.addConstraint(Sketcher.Constraint("Vertical", 2, 2, 5, 2))
sketch8.addConstraint(Sketcher.Constraint("Equal", 2, 4))
sketch8.addConstraint(Sketcher.Constraint("DistanceX", 1, 2, 1, 1, Q("10.5 in")))
sketch8.addConstraint(Sketcher.Constraint("DistanceY", 0, 2, 0, 1, Q("0.05 in")))
sketch8.addConstraint(Sketcher.Constraint("DistanceY", 4, 2, 3, 2, Q("2.6 in")))
sketch8.addConstraint(Sketcher.Constraint("DistanceX", -1, 1, 0, 2, Q("5.25 in")))
sketch8.addConstraint(Sketcher.Constraint("DistanceY", 0, 2, -1, 1, Q("1.425 in")))
pocket2 = body.newObject("PartDesign::Pocket", "Pocket001")
pocket2.Profile = sketch8
pocket2.Length = Q("37.5 in")
pocket2.Reversed = True

# Sketch on YZ plane
sketch9 = body.newObject("Sketcher::SketchObject", "Sketch008")
sketch9.AttachmentSupport = (doc.getObject("YZ_Plane"), [""])
sketch9.MapMode = "FlatFace"
sketch9.AttachmentOffset = App.Placement(Vector(0, 0, -18.75 * 25.4), App.Rotation())
sketch9.addGeometry(Part.LineSegment(Vector(-222, -100, 0), Vector(-222, -162, 0)), False)
sketch9.addGeometry(Part.LineSegment(Vector(-222, -162, 0), Vector(-203, -162, 0)), False)
sketch9.addGeometry(Part.LineSegment(Vector(-203, -162, 0), Vector(-203, -100, 0)), False)
sketch9.addGeometry(Part.LineSegment(Vector(-203, -100, 0), Vector(-222, -100, 0)), False)
sketch9.addGeometry(Part.LineSegment(Vector(-222, -36, 0), Vector(-222, -98, 0)), False)
sketch9.addGeometry(Part.LineSegment(Vector(-222, -98, 0), Vector(-203, -98, 0)), False)
sketch9.addGeometry(Part.LineSegment(Vector(-203, -98, 0), Vector(-203, -36, 0)), False)
sketch9.addGeometry(Part.LineSegment(Vector(-203, -36, 0), Vector(-222, -36, 0)), False)
sketch9.addConstraint(Sketcher.Constraint("Coincident", 0, 2, 1, 1))
sketch9.addConstraint(Sketcher.Constraint("Coincident", 1, 2, 2, 1))
sketch9.addConstraint(Sketcher.Constraint("Coincident", 2, 2, 3, 1))
sketch9.addConstraint(Sketcher.Constraint("Coincident", 3, 2, 0, 1))
sketch9.addConstraint(Sketcher.Constraint("Coincident", 4, 2, 5, 1))
sketch9.addConstraint(Sketcher.Constraint("Coincident", 5, 2, 6, 1))
sketch9.addConstraint(Sketcher.Constraint("Coincident", 6, 2, 7, 1))
sketch9.addConstraint(Sketcher.Constraint("Coincident", 7, 2, 4, 1))
sketch9.addConstraint(Sketcher.Constraint("Vertical", 0))
sketch9.addConstraint(Sketcher.Constraint("Horizontal", 1))
sketch9.addConstraint(Sketcher.Constraint("Vertical", 2))
sketch9.addConstraint(Sketcher.Constraint("Horizontal", 3))
sketch9.addConstraint(Sketcher.Constraint("Vertical", 4))
sketch9.addConstraint(Sketcher.Constraint("Horizontal", 5))
sketch9.addConstraint(Sketcher.Constraint("Vertical", 6))
sketch9.addConstraint(Sketcher.Constraint("Horizontal", 7))
sketch9.addConstraint(Sketcher.Constraint("Vertical", 3, 2, 4, 2))
sketch9.addConstraint(Sketcher.Constraint("Vertical", 2, 2, 5, 2))
sketch9.addConstraint(Sketcher.Constraint("Equal", 2, 4))
sketch9.addConstraint(Sketcher.Constraint("DistanceX", 1, 2, -1, 1, Q("8 in")))
sketch9.addConstraint(Sketcher.Constraint("DistanceX", 1, 1, 1, 2, Q("0.75 in")))
sketch9.addConstraint(Sketcher.Constraint("DistanceY", 0, 2, 0, 1, Q("2.45 in")))
sketch9.addConstraint(Sketcher.Constraint("DistanceY", 0, 2, 4, 2, Q("2.5 in")))
sketch9.addConstraint(Sketcher.Constraint("DistanceY", 0, 2, -1, 1, Q("6.375 in")))
pad7 = body.newObject("PartDesign::Pad", "Pad006")
pad7.Profile = sketch9
pad7.Length = Q("37.5 in")

doc.recompute()
